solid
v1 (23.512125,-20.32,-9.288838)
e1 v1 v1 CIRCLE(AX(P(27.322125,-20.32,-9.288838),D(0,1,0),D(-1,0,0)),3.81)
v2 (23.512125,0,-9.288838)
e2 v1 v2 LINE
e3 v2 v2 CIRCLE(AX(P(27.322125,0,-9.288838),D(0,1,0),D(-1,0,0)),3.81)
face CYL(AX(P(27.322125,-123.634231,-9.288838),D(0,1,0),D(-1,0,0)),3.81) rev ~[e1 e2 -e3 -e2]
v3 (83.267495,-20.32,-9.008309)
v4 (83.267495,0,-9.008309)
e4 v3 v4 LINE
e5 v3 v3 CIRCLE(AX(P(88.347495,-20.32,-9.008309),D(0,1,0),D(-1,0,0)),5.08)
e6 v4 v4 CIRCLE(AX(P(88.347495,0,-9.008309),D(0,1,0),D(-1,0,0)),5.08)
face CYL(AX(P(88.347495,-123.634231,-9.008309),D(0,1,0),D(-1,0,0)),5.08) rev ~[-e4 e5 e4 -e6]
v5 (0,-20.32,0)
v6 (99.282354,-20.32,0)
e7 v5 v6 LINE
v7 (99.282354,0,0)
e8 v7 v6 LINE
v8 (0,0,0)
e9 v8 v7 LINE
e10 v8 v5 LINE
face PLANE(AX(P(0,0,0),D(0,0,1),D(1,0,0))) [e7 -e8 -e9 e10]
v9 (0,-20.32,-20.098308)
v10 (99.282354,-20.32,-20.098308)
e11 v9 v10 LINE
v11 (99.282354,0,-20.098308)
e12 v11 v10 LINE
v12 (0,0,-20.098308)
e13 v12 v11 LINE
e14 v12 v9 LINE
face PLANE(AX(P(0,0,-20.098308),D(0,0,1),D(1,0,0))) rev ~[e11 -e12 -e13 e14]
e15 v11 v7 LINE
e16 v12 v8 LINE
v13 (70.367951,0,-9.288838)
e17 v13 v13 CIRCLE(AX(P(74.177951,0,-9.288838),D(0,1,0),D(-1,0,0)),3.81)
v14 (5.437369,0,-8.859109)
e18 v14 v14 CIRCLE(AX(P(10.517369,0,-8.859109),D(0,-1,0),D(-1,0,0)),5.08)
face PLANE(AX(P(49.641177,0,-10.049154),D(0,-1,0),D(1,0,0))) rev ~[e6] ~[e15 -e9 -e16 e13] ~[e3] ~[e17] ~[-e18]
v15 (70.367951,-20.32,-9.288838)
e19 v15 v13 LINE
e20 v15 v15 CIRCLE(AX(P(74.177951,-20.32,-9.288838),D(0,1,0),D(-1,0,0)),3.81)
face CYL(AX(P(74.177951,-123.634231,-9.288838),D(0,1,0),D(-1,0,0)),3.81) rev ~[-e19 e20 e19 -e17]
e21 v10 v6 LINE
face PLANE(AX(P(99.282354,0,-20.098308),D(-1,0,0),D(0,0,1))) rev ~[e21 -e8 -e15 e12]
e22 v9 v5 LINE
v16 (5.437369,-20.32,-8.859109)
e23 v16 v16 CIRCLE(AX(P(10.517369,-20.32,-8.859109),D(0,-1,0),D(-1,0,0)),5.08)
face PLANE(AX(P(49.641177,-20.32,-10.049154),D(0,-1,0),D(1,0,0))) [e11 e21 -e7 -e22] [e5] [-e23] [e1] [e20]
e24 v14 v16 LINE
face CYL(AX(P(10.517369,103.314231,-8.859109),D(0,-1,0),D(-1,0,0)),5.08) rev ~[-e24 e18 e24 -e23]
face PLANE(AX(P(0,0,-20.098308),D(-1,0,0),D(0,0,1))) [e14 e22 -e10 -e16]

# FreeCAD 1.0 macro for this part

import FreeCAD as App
import Part
import Sketcher

V = App.Vector
Q = App.Units.Quantity


def add_polygon(sketch, points):
    """Adds a closed chain of lines whose ends are joined by coincident constraints."""
    first, n = sketch.GeometryCount, len(points)
    for a, b in zip(points, points[1:] + points[:1]):
        sketch.addGeometry(Part.LineSegment(App.Vector(*a, 0), App.Vector(*b, 0)), False)
    for i in range(n):
        sketch.addConstraint(Sketcher.Constraint("Coincident", first + i, 2, first + (i + 1) % n, 1))

doc = App.newDocument("Part")
params = doc.addObject("Spreadsheet::Sheet", "Params")
for row, (alias, value) in enumerate([
    ("pad1_length", "0.8 in"),
    ("sketch2_diameter", "0.4 in"),
    ("hole_diameter", "0.4 in"),
    ("sketch3_diameter", "0.4 in"),
    ("hole2_diameter", "0.4 in"),
    ("sketch4_diameter", "0.3 in"),
    ("hole3_diameter", "0.3 in"),
], start=1):
    params.set(f"A{row}", alias)
    params.set(f"B{row}", "=" + value)
    params.setAlias(f"B{row}", alias)

body = doc.addObject("PartDesign::Body", "Body")

sketch1 = body.newObject("Sketcher::SketchObject", "Sketch")
sketch1.AttachmentSupport = (doc.getObject("XZ_Plane"), [""])
sketch1.MapMode = "FlatFace"
add_polygon(sketch1, [(0, 0), (0, -20.098308), (99.282354, -20.098308), (99.282354, 0)])
sketch1.addConstraint(Sketcher.Constraint("Vertical", 0))
sketch1.addConstraint(Sketcher.Constraint("Horizontal", 1))
sketch1.addConstraint(Sketcher.Constraint("Vertical", 2))
sketch1.addConstraint(Sketcher.Constraint("Horizontal", 3))
sketch1.addConstraint(Sketcher.Constraint("Coincident", 3, 2, -1, 1))
sketch1.addConstraint(Sketcher.Constraint("DistanceY", 0, 2, 0, 1, 20.098308))
sketch1.addConstraint(Sketcher.Constraint("DistanceX", 1, 1, 1, 2, 99.282354))
pad1 = body.newObject("PartDesign::Pad", "Pad")
pad1.Profile = sketch1
pad1.setExpression("Length", "Params.pad1_length")

sketch2 = body.newObject("Sketcher::SketchObject", "Sketch001")
sketch2.AttachmentSupport = (doc.getObject("XZ_Plane"), [""])
sketch2.MapMode = "FlatFace"
sketch2.addGeometry(Part.Circle(V(10.517369, -8.859109, 0), V(0, 0, 1), 5.08), False)
sketch2.addConstraint(Sketcher.Constraint("Diameter", 0, Q("0.4 in")))
sketch2.addConstraint(Sketcher.Constraint("DistanceX", -1, 1, 0, 3, 10.517369))
sketch2.addConstraint(Sketcher.Constraint("DistanceY", 0, 3, -1, 1, 8.859109))
sketch2.setExpression("Constraints[0]", "Params.sketch2_diameter")
doc.recompute()
hole = body.newObject("PartDesign::Hole", "Hole")
hole.Profile = sketch2
hole.ThreadType = "None"
hole.setExpression("Diameter", "Params.hole_diameter")
hole.DepthType = "ThroughAll"
hole.Reversed = True

sketch3 = body.newObject("Sketcher::SketchObject", "Sketch002")
sketch3.AttachmentSupport = (doc.getObject("XZ_Plane"), [""])
sketch3.MapMode = "FlatFace"
sketch3.AttachmentOffset = App.Placement(V(0, 0, 0.8 * 25.4), App.Rotation())
sketch3.addGeometry(Part.Circle(V(88.347495, -9.008309, 0), V(0, 0, 1), 5.08), False)
sketch3.addConstraint(Sketcher.Constraint("Diameter", 0, Q("0.4 in")))
sketch3.addConstraint(Sketcher.Constraint("DistanceY", 0, 3, -1, 1, 9.008309))
sketch3.addConstraint(Sketcher.Constraint("DistanceX", -1, 1, 0, 3, 88.347495))
sketch3.setExpression("Constraints[0]", "Params.sketch3_diameter")
doc.recompute()
hole2 = body.newObject("PartDesign::Hole", "Hole001")
hole2.Profile = sketch3
hole2.ThreadType = "None"
hole2.setExpression("Diameter", "Params.hole2_diameter")
hole2.DepthType = "ThroughAll"

sketch4 = body.newObject("Sketcher::SketchObject", "Sketch003")
sketch4.AttachmentSupport = (doc.getObject("XZ_Plane"), [""])
sketch4.MapMode = "FlatFace"
sketch4.AttachmentOffset = App.Placement(V(0, 0, 0.8 * 25.4), App.Rotation())
sketch4.addGeometry(Part.Circle(V(27.322125, -9.288838, 0), V(0, 0, 1), 3.81), False)
sketch4.addGeometry(Part.Circle(V(74.177951, -9.288838, 0), V(0, 0, 1), 3.81), False)
sketch4.addConstraint(Sketcher.Constraint("Equal", 0, 1))
sketch4.addConstraint(Sketcher.Constraint("Horizontal", 0, 3, 1, 3))
sketch4.addConstraint(Sketcher.Constraint("Diameter", 0, Q("0.3 in")))
sketch4.addConstraint(Sketcher.Constraint("DistanceY", 0, 3, -1, 1, 9.288838))
sketch4.addConstraint(Sketcher.Constraint("DistanceX", -1, 1, 1, 3, 74.177951))
sketch4.addConstraint(Sketcher.Constraint("DistanceX", -1, 1, 0, 3, 27.322125))
sketch4.setExpression("Constraints[2]", "Params.sketch4_diameter")
doc.recompute()
hole3 = body.newObject("PartDesign::Hole", "Hole002")
hole3.Profile = sketch4
hole3.ThreadType = "None"
hole3.setExpression("Diameter", "Params.hole3_diameter")
hole3.DepthType = "ThroughAll"

doc.recompute()
